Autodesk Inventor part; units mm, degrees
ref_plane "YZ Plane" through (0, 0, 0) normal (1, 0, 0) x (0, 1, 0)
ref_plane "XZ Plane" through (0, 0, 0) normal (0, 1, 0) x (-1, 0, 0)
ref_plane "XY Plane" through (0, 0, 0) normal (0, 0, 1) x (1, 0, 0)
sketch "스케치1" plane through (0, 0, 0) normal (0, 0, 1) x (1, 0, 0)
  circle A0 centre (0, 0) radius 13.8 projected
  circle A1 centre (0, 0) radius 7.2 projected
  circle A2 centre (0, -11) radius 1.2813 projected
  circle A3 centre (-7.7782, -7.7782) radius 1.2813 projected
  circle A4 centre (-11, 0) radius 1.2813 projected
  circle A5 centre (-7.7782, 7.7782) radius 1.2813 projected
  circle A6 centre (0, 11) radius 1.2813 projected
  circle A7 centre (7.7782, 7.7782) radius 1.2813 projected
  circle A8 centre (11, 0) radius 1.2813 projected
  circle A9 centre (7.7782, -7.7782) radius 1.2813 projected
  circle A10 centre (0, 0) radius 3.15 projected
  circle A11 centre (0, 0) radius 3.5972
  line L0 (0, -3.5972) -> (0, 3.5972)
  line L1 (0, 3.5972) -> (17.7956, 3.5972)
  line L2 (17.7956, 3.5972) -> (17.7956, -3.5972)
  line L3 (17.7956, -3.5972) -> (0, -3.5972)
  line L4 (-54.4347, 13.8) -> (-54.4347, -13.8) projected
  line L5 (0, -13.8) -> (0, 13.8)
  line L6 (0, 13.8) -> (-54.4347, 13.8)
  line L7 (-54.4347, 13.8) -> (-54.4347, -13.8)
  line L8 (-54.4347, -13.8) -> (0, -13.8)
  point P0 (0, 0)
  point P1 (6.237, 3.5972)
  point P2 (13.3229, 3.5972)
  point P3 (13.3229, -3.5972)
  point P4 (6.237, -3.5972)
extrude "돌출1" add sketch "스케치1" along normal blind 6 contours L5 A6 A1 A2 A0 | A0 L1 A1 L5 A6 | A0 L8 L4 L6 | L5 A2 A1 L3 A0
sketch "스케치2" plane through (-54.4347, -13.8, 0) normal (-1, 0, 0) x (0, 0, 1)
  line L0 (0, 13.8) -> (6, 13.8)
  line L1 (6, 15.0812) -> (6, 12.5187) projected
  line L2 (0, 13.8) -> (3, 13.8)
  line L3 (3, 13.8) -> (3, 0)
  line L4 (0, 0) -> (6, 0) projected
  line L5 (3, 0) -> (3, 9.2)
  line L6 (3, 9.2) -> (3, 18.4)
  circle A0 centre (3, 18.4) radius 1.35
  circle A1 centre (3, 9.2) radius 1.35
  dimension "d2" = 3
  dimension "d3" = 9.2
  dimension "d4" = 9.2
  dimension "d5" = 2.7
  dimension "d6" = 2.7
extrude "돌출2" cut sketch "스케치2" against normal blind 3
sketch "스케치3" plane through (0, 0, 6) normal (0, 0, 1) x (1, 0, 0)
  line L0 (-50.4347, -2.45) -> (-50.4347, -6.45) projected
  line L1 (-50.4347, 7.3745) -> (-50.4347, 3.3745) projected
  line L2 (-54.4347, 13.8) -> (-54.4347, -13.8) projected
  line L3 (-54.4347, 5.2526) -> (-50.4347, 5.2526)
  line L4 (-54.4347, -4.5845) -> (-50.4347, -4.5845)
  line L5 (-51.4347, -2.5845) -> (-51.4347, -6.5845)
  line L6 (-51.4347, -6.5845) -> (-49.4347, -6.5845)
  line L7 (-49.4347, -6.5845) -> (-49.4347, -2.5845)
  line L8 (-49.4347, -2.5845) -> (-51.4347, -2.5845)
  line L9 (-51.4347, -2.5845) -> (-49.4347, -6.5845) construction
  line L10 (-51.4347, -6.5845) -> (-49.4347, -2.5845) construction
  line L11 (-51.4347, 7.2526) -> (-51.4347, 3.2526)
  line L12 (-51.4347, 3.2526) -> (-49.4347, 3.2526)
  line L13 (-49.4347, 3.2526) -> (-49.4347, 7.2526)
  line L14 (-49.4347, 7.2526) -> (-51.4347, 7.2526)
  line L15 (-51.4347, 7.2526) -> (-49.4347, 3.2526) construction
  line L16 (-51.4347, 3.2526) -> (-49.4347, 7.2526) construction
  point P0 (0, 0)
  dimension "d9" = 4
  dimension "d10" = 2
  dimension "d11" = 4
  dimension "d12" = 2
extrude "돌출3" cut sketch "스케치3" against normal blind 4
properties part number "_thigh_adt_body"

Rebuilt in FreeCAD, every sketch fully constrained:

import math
import FreeCAD as App
import Part
import Sketcher
from FreeCAD import Vector

doc = App.newDocument("Part")
params = doc.addObject("Spreadsheet::Sheet", "Params")
for row, (alias, value) in enumerate([
    ("sketch1_radius", "13.8 mm"),
    ("sketch1_radius2", "7.2 mm"),
    ("pad1_length", "6 mm"),
    ("sketch2_diameter", "2.7 mm"),
    ("pocket1_length", "3 mm"),
    ("sketch3_width", "2 mm"),
    ("sketch3_height", "4 mm"),
    ("pocket2_length", "4 mm"),
], start=1):
    params.set(f"A{row}", alias)
    params.set(f"B{row}", "=" + value)
    params.setAlias(f"B{row}", alias)

body = doc.addObject("PartDesign::Body", "Body")

sketch1 = doc.addObject("Sketcher::SketchObject", "Sketch")
body.addObject(sketch1)
sketch1.AttachmentSupport = (doc.XY_Plane, [""])
sketch1.MapMode = "FlatFace"
sketch1.addGeometry([
    Part.LineSegment(Vector(6.236999, 3.5972, 0), Vector(13.322918, 3.5972, 0)),
    Part.ArcOfCircle(Part.Circle(Vector(0, 0, 0), Vector(0, 0, 1), 13.8), math.radians(15.109623), math.radians(90)),
    Part.LineSegment(Vector(0, 13.8, 0), Vector(-54.4347, 13.8, 0)),
    Part.LineSegment(Vector(-54.4347, 13.8, 0), Vector(-54.4347, -13.8, 0)),
    Part.LineSegment(Vector(-54.4347, -13.8, 0), Vector(0, -13.8, 0)),
    Part.ArcOfCircle(Part.Circle(Vector(0, 0, 0), Vector(0, 0, 1), 13.8), math.radians(-90), math.radians(-15.109623)),
    Part.LineSegment(Vector(13.322918, -3.5972, 0), Vector(6.236999, -3.5972, 0)),
    Part.ArcOfCircle(Part.Circle(Vector(0, 0, 0), Vector(0, 0, 1), 7.2), math.radians(29.974275), math.radians(330.025725)),
    Part.Circle(Vector(0, 11, 0), Vector(0, 0, 1), 1.2813),
    Part.Circle(Vector(0, -11, 0), Vector(0, 0, 1), 1.2813),
    Part.Circle(Vector(-7.7782, -7.7782, 0), Vector(0, 0, 1), 1.2813),
    Part.Circle(Vector(-11, 0, 0), Vector(0, 0, 1), 1.2813),
    Part.Circle(Vector(-7.7782, 7.7782, 0), Vector(0, 0, 1), 1.2813),
    Part.Circle(Vector(7.7782, 7.7782, 0), Vector(0, 0, 1), 1.2813),
    Part.Circle(Vector(7.7782, -7.7782, 0), Vector(0, 0, 1), 1.2813),
], False)
sketch1.addConstraint([
    Sketcher.Constraint("Coincident", 0, 2, 1, 1),
    Sketcher.Constraint("Tangent", 1, 2, 2, 1),
    Sketcher.Constraint("Coincident", 2, 2, 3, 1),
    Sketcher.Constraint("Coincident", 3, 2, 4, 1),
    Sketcher.Constraint("Tangent", 4, 2, 5, 1),
    Sketcher.Constraint("Coincident", 5, 2, 6, 1),
    Sketcher.Constraint("Coincident", 6, 2, 7, 2),
    Sketcher.Constraint("Coincident", 7, 1, 0, 1),
    Sketcher.Constraint("Horizontal", 0),
    Sketcher.Constraint("Horizontal", 2),
    Sketcher.Constraint("Vertical", 3),
    Sketcher.Constraint("Horizontal", 4),
    Sketcher.Constraint("Horizontal", 6),
    Sketcher.Constraint("Coincident", 1, 3, -1, 1),
    Sketcher.Constraint("Coincident", 5, 3, -1, 1),
    Sketcher.Constraint("Coincident", 7, 3, -1, 1),
    Sketcher.Constraint("Equal", 1, 5),
    Sketcher.Constraint("Equal", 8, 9),
    Sketcher.Constraint("Equal", 9, 10),
    Sketcher.Constraint("Equal", 10, 11),
    Sketcher.Constraint("Equal", 11, 12),
    Sketcher.Constraint("Equal", 12, 13),
    Sketcher.Constraint("Equal", 13, 14),
    Sketcher.Constraint("Symmetric", 8, 3, 9, 3, -1, 1),
    Sketcher.Constraint("Symmetric", 10, 3, 13, 3, -1, 1),
    Sketcher.Constraint("Symmetric", 12, 3, 14, 3, -1, 1),
    Sketcher.Constraint("Symmetric", 12, 3, 13, 3, -2),
    Sketcher.Constraint("PointOnObject", 8, 3, -2),
    Sketcher.Constraint("PointOnObject", 11, 3, -1),
    Sketcher.Constraint("Vertical", 0, 2, 5, 2),
    Sketcher.Constraint("Radius", 1, 13.8),
    Sketcher.Constraint("Radius", 7, 7.2),
    Sketcher.Constraint("DistanceY", -1, 1, 8, 3, 11.0),
    Sketcher.Constraint("DistanceX", 11, 3, -1, 1, 11.0),
    Sketcher.Constraint("Diameter", 8, 2.5626),
    Sketcher.Constraint("DistanceX", 0, 1, 0, 2, 7.086),
    Sketcher.Constraint("DistanceX", 2, 2, 2, 1, 54.4347),
    Sketcher.Constraint("DistanceY", 0, 2, 13, 3, 4.181),
    Sketcher.Constraint("DistanceX", 10, 3, -1, 1, 7.7782),
])
sketch1.setExpression("Constraints[30]", "Params.sketch1_radius")
sketch1.setExpression("Constraints[31]", "Params.sketch1_radius2")
pad1 = doc.addObject("PartDesign::Pad", "Pad")
body.addObject(pad1)
pad1.Profile = sketch1
pad1.setExpression("Length", "Params.pad1_length")

sketch2 = doc.addObject("Sketcher::SketchObject", "Sketch001")
body.addObject(sketch2)
sketch2.AttachmentSupport = (doc.YZ_Plane, [""])
sketch2.MapMode = "FlatFace"
sketch2.AttachmentOffset = App.Placement(Vector(0, 0, -54.4347), App.Rotation())
sketch2.addGeometry([
    Part.Circle(Vector(-4.6, 3, 0), Vector(0, 0, 1), 1.35),
    Part.Circle(Vector(4.6, 3, 0), Vector(0, 0, 1), 1.35),
], False)
sketch2.addConstraint([
    Sketcher.Constraint("Equal", 0, 1),
    Sketcher.Constraint("Symmetric", 0, 3, 1, 3, -2),
    Sketcher.Constraint("Diameter", 0, 2.7),
    Sketcher.Constraint("DistanceY", -1, 1, 0, 3, 3.0),
    Sketcher.Constraint("DistanceX", 0, 3, 1, 3, 9.2),
])
sketch2.setExpression("Constraints[2]", "Params.sketch2_diameter")
pocket1 = doc.addObject("PartDesign::Pocket", "Pocket")
body.addObject(pocket1)
pocket1.Profile = sketch2
pocket1.setExpression("Length", "Params.pocket1_length")
pocket1.Reversed = True

sketch3 = doc.addObject("Sketcher::SketchObject", "Sketch002")
body.addObject(sketch3)
sketch3.AttachmentSupport = (doc.XY_Plane, [""])
sketch3.MapMode = "FlatFace"
sketch3.AttachmentOffset = App.Placement(Vector(0, 0, 6), App.Rotation())
sketch3.addGeometry([
    Part.LineSegment(Vector(-49.4347, -2.5845, 0), Vector(-51.4347, -2.5845, 0)),
    Part.LineSegment(Vector(-51.4347, -2.5845, 0), Vector(-51.4347, -6.5845, 0)),
    Part.LineSegment(Vector(-51.4347, -6.5845, 0), Vector(-49.4347, -6.5845, 0)),
    Part.LineSegment(Vector(-49.4347, -6.5845, 0), Vector(-49.4347, -2.5845, 0)),
    Part.LineSegment(Vector(-51.4347, 7.2526, 0), Vector(-51.4347, 3.2526, 0)),
    Part.LineSegment(Vector(-51.4347, 3.2526, 0), Vector(-49.4347, 3.2526, 0)),
    Part.LineSegment(Vector(-49.4347, 3.2526, 0), Vector(-49.4347, 7.2526, 0)),
    Part.LineSegment(Vector(-49.4347, 7.2526, 0), Vector(-51.4347, 7.2526, 0)),
], False)
sketch3.addConstraint([
    Sketcher.Constraint("Coincident", 0, 2, 1, 1),
    Sketcher.Constraint("Coincident", 1, 2, 2, 1),
    Sketcher.Constraint("Coincident", 2, 2, 3, 1),
    Sketcher.Constraint("Coincident", 3, 2, 0, 1),
    Sketcher.Constraint("Coincident", 4, 2, 5, 1),
    Sketcher.Constraint("Coincident", 5, 2, 6, 1),
    Sketcher.Constraint("Coincident", 6, 2, 7, 1),
    Sketcher.Constraint("Coincident", 7, 2, 4, 1),
    Sketcher.Constraint("Horizontal", 0),
    Sketcher.Constraint("Vertical", 1),
    Sketcher.Constraint("Horizontal", 2),
    Sketcher.Constraint("Vertical", 3),
    Sketcher.Constraint("Vertical", 4),
    Sketcher.Constraint("Horizontal", 5),
    Sketcher.Constraint("Vertical", 6),
    Sketcher.Constraint("Horizontal", 7),
    Sketcher.Constraint("Vertical", 1, 2, 4, 2),
    Sketcher.Constraint("Vertical", 3, 2, 5, 2),
    Sketcher.Constraint("Equal", 3, 4),
    Sketcher.Constraint("DistanceX", 0, 2, 0, 1, 2.0),
    Sketcher.Constraint("DistanceY", 1, 2, 1, 1, 4.0),
    Sketcher.Constraint("DistanceY", 0, 2, 4, 2, 5.837),
    Sketcher.Constraint("DistanceX", 0, 2, -1, 1, 51.4347),
    Sketcher.Constraint("DistanceY", 0, 2, -1, 1, 2.5845),
])
sketch3.setExpression("Constraints[19]", "Params.sketch3_width")
sketch3.setExpression("Constraints[20]", "Params.sketch3_height")
pocket2 = doc.addObject("PartDesign::Pocket", "Pocket001")
body.addObject(pocket2)
pocket2.Profile = sketch3
pocket2.setExpression("Length", "Params.pocket2_length")

doc.recompute()
